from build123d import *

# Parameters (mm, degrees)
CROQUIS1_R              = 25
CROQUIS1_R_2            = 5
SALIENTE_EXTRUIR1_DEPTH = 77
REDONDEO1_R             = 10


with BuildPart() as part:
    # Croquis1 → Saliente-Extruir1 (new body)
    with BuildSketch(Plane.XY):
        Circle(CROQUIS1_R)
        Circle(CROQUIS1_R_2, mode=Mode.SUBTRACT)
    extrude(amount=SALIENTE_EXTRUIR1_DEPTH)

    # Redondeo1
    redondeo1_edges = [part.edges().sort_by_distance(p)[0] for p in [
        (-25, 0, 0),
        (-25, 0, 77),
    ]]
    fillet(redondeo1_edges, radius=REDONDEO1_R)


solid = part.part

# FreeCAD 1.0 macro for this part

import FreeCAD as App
import Part
import Sketcher
from FreeCAD import Vector
Q = App.Units.Quantity


def edges_at(feature, points):
    """Names of the edges that pass closest to the given points."""
    edges = feature.Shape.Edges
    near = lambda p: min(range(len(edges)), key=lambda i: edges[i].distToShape(Part.Vertex(*p))[0])
    return sorted({f"Edge{near(p) + 1}" for p in points})

doc = App.newDocument("Part")
body = doc.addObject("PartDesign::Body", "Body")

sketch1 = body.newObject("Sketcher::SketchObject", "Sketch")
sketch1.AttachmentSupport = (doc.getObject("XY_Plane"), [""])
sketch1.MapMode = "FlatFace"
sketch1.addGeometry(Part.Circle(Vector(0, 0, 0), Vector(0, 0, 1), 25), False)
sketch1.addGeometry(Part.Circle(Vector(0, 0, 0), Vector(0, 0, 1), 5), False)
sketch1.addConstraint(Sketcher.Constraint("Coincident", 0, 3, -1, 1))
sketch1.addConstraint(Sketcher.Constraint("Coincident", 1, 3, -1, 1))
sketch1.addConstraint(Sketcher.Constraint("Diameter", 0, Q("50 mm")))
sketch1.addConstraint(Sketcher.Constraint("Diameter", 1, Q("10 mm")))
pad1 = body.newObject("PartDesign::Pad", "Pad")
pad1.Profile = sketch1
pad1.Length = 77
doc.recompute()

fillet = body.newObject("PartDesign::Fillet", "Fillet")
fillet.Base = (pad1, edges_at(pad1, [(-25, 0, 0), (-25, 0, 77)]))
fillet.Radius = 10

doc.recompute()
